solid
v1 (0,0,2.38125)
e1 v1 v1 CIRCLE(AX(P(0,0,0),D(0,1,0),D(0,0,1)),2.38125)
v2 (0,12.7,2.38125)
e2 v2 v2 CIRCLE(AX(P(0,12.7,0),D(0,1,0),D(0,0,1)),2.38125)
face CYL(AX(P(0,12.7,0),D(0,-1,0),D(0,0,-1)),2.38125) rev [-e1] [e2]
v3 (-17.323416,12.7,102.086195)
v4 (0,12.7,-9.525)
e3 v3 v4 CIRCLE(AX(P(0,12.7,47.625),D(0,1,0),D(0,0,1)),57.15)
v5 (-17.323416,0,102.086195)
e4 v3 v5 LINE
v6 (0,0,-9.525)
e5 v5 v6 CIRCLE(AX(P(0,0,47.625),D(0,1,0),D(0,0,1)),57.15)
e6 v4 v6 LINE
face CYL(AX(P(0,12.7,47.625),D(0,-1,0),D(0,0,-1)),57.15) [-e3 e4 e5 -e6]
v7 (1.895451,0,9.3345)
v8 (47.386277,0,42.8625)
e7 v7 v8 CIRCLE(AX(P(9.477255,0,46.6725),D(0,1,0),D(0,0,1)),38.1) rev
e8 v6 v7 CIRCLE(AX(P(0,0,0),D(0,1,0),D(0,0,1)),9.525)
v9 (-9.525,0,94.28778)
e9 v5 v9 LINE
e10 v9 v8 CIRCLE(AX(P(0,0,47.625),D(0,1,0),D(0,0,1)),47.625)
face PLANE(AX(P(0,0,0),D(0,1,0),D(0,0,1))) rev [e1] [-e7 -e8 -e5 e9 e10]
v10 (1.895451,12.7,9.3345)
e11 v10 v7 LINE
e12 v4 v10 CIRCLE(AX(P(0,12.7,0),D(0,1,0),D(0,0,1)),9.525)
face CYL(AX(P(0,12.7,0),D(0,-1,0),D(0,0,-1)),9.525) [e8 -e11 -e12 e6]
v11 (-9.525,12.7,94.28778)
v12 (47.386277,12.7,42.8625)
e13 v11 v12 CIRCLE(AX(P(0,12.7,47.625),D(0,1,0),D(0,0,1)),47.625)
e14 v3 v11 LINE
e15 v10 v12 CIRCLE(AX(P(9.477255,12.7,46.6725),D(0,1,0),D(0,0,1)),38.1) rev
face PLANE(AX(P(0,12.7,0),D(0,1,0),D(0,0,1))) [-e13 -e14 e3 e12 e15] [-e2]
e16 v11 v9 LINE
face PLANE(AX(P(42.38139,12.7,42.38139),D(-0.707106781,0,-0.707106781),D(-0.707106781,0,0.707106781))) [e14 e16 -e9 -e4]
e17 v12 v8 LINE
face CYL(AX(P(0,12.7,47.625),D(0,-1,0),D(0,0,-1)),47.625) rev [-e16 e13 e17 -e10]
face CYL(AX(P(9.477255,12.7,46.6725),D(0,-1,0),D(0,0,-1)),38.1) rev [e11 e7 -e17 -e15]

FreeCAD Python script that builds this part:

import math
import FreeCAD as App
import Part
import Sketcher
Q = App.Units.Quantity

doc = App.newDocument("Part")
body = doc.addObject("PartDesign::Body", "Body")

sketch1 = doc.addObject("Sketcher::SketchObject", "Sketch")
body.addObject(sketch1)
sketch1.AttachmentSupport = (doc.XZ_Plane, [""])
sketch1.MapMode = "FlatFace"
sketch1.addGeometry([
    Part.LineSegment(App.Vector(-9.5, 94.3, 0), App.Vector(-17.3, 102.1, 0)),
    Part.ArcOfCircle(Part.Circle(App.Vector(0, 47.6, 0), App.Vector(0, 0, 1), 57.1), math.radians(-90), math.radians(108)),
    Part.ArcOfCircle(Part.Circle(App.Vector(0, 0, 0), App.Vector(0, 0, 1), 9.5), math.radians(79), math.radians(270)),
    Part.ArcOfCircle(Part.Circle(App.Vector(9.5, 46.7, 0), App.Vector(0, 0, 1), 38.1), math.radians(-101), math.radians(-6)),
    Part.ArcOfCircle(Part.Circle(App.Vector(0, 47.6, 0), App.Vector(0, 0, 1), 47.6), math.radians(-6), math.radians(102)),
    Part.Circle(App.Vector(0, 0, 0), App.Vector(0, 0, 1), 2.4),
], False)
sketch1.addConstraint([
    Sketcher.Constraint("Coincident", 0, 2, 1, 2),
    Sketcher.Constraint("Tangent", 1, 1, 2, 2),
    Sketcher.Constraint("Tangent", 2, 1, 3, 1),
    Sketcher.Constraint("Tangent", 3, 2, 4, 1),
    Sketcher.Constraint("Coincident", 4, 2, 0, 1),
    Sketcher.Constraint("Coincident", 2, 3, -1, 1),
    Sketcher.Constraint("Coincident", 5, 3, -1, 1),
    Sketcher.Constraint("Coincident", 4, 3, 1, 3),
    Sketcher.Constraint("PointOnObject", 1, 3, -2),
    Sketcher.Constraint("Radius", 3, Q("1.5 in")),
    Sketcher.Constraint("Radius", 1, Q("2.25 in")),
    Sketcher.Constraint("Diameter", 5, Q("0.1875 in")),
    Sketcher.Constraint("Angle", 0, Q("135 deg")),
    Sketcher.Constraint("Radius", 2, Q("0.375 in")),
    Sketcher.Constraint("Radius", 4, Q("1.875 in")),
    Sketcher.Constraint("DistanceX", 4, 2, -1, 1, Q("0.375 in")),
])
pad1 = doc.addObject("PartDesign::Pad", "Pad")
body.addObject(pad1)
pad1.Profile = sketch1
pad1.Length = Q("0.5 in")
pad1.Reversed = True

doc.recompute()
